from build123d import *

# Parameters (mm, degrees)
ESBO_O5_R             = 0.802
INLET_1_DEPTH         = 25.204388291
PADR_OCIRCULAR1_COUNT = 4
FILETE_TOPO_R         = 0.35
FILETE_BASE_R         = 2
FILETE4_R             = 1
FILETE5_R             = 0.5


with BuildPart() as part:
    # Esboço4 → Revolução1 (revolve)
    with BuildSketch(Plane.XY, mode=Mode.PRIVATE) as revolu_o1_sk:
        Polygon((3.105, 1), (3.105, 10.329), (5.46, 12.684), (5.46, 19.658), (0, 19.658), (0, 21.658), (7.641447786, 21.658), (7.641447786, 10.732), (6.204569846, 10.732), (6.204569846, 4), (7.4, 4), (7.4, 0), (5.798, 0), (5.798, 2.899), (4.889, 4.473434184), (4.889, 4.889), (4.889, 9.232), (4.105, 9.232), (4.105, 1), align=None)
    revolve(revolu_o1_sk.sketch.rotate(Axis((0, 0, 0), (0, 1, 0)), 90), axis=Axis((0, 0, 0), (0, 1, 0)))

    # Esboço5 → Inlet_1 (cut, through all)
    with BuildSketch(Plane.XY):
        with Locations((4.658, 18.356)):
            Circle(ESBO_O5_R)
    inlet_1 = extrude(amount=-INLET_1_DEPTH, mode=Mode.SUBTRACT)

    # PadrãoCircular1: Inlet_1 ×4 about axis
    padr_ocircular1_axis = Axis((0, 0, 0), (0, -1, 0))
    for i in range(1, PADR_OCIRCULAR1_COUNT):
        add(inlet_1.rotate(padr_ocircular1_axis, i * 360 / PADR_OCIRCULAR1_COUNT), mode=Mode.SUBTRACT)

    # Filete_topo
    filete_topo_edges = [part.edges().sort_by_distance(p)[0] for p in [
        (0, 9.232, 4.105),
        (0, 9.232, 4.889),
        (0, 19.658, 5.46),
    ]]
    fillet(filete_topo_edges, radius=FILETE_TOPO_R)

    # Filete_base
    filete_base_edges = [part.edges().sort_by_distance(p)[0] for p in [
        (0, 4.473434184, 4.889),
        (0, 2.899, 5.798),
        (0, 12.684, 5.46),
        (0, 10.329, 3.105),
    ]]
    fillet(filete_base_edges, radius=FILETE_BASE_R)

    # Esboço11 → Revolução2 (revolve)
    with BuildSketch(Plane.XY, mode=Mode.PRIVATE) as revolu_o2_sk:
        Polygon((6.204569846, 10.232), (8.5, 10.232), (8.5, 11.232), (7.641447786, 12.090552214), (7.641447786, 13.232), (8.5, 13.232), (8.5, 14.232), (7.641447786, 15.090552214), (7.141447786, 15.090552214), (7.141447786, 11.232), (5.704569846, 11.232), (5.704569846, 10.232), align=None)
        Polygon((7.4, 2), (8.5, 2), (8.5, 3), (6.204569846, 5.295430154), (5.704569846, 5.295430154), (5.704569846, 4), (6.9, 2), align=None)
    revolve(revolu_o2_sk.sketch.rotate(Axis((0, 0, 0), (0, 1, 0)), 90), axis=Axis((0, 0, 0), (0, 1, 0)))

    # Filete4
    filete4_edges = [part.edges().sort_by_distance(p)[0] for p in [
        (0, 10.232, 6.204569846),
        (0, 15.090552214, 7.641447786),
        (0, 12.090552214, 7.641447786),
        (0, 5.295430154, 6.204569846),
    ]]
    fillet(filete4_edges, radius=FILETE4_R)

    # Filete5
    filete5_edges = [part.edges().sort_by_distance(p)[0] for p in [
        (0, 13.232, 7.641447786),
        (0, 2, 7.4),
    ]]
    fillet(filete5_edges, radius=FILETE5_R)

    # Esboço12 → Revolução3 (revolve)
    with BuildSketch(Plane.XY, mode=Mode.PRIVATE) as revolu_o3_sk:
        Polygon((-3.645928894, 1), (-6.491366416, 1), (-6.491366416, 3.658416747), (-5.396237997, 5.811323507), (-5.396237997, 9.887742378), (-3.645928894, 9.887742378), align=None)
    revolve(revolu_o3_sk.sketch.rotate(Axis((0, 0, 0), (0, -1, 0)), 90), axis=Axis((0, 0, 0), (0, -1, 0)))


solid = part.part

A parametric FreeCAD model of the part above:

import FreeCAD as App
import Part
import Sketcher
from FreeCAD import Vector
Q = App.Units.Quantity


def edges_at(feature, points):
    """Names of the edges that pass closest to the given points."""
    edges = feature.Shape.Edges
    near = lambda p: min(range(len(edges)), key=lambda i: edges[i].distToShape(Part.Vertex(*p))[0])
    return sorted({f"Edge{near(p) + 1}" for p in points})

doc = App.newDocument("Part")
body = doc.addObject("PartDesign::Body", "Body")

sketch1 = body.newObject("Sketcher::SketchObject", "Sketch")
sketch1.AttachmentSupport = (doc.getObject("XY_Plane"), [""])
sketch1.MapMode = "FlatFace"
sketch1.addGeometry([
    Part.LineSegment(Vector(3.1, 10.3, 0), Vector(3.1, 1, 0)),
    Part.LineSegment(Vector(3.1, 1, 0), Vector(4.1, 1, 0)),
    Part.LineSegment(Vector(4.1, 1, 0), Vector(4.1, 9.2, 0)),
    Part.LineSegment(Vector(4.1, 9.2, 0), Vector(4.9, 9.2, 0)),
    Part.LineSegment(Vector(4.9, 9.2, 0), Vector(4.9, 4.5, 0)),
    Part.LineSegment(Vector(4.9, 4.5, 0), Vector(5.8, 2.9, 0)),
    Part.LineSegment(Vector(5.8, 2.9, 0), Vector(5.8, 0, 0)),
    Part.LineSegment(Vector(5.8, 0, 0), Vector(7.4, 0, 0)),
    Part.LineSegment(Vector(7.4, 0, 0), Vector(7.4, 4, 0)),
    Part.LineSegment(Vector(7.4, 4, 0), Vector(6.2, 4, 0)),
    Part.LineSegment(Vector(6.2, 4, 0), Vector(6.2, 10.7, 0)),
    Part.LineSegment(Vector(6.2, 10.7, 0), Vector(7.6, 10.7, 0)),
    Part.LineSegment(Vector(7.6, 10.7, 0), Vector(7.6, 21.7, 0)),
    Part.LineSegment(Vector(7.6, 21.7, 0), Vector(0, 21.7, 0)),
    Part.LineSegment(Vector(0, 21.7, 0), Vector(0, 19.7, 0)),
    Part.LineSegment(Vector(0, 19.7, 0), Vector(5.5, 19.7, 0)),
    Part.LineSegment(Vector(5.5, 19.7, 0), Vector(5.5, 12.7, 0)),
    Part.LineSegment(Vector(5.5, 12.7, 0), Vector(3.1, 10.3, 0)),
], False)
sketch1.addConstraint([
    Sketcher.Constraint("Coincident", 0, 2, 1, 1),
    Sketcher.Constraint("Coincident", 1, 2, 2, 1),
    Sketcher.Constraint("Coincident", 2, 2, 3, 1),
    Sketcher.Constraint("Coincident", 3, 2, 4, 1),
    Sketcher.Constraint("Coincident", 4, 2, 5, 1),
    Sketcher.Constraint("Coincident", 5, 2, 6, 1),
    Sketcher.Constraint("Coincident", 6, 2, 7, 1),
    Sketcher.Constraint("Coincident", 7, 2, 8, 1),
    Sketcher.Constraint("Coincident", 8, 2, 9, 1),
    Sketcher.Constraint("Coincident", 9, 2, 10, 1),
    Sketcher.Constraint("Coincident", 10, 2, 11, 1),
    Sketcher.Constraint("Coincident", 11, 2, 12, 1),
    Sketcher.Constraint("Coincident", 12, 2, 13, 1),
    Sketcher.Constraint("Coincident", 13, 2, 14, 1),
    Sketcher.Constraint("Coincident", 14, 2, 15, 1),
    Sketcher.Constraint("Coincident", 15, 2, 16, 1),
    Sketcher.Constraint("Coincident", 16, 2, 17, 1),
    Sketcher.Constraint("Coincident", 17, 2, 0, 1),
    Sketcher.Constraint("Vertical", 0),
    Sketcher.Constraint("Horizontal", 1),
    Sketcher.Constraint("Vertical", 2),
    Sketcher.Constraint("Horizontal", 3),
    Sketcher.Constraint("Vertical", 4),
    Sketcher.Constraint("Vertical", 6),
    Sketcher.Constraint("Horizontal", 7),
    Sketcher.Constraint("Vertical", 8),
    Sketcher.Constraint("Horizontal", 9),
    Sketcher.Constraint("Vertical", 10),
    Sketcher.Constraint("Horizontal", 11),
    Sketcher.Constraint("Vertical", 12),
    Sketcher.Constraint("Horizontal", 13),
    Sketcher.Constraint("Vertical", 14),
    Sketcher.Constraint("Horizontal", 15),
    Sketcher.Constraint("Vertical", 16),
    Sketcher.Constraint("PointOnObject", 6, 2, -1),
    Sketcher.Constraint("PointOnObject", 13, 2, -2),
    Sketcher.Constraint("DistanceX", 1, 1, 1, 2, Q("1 mm")),
    Sketcher.Constraint("DistanceY", 8, 1, 8, 2, Q("4 mm")),
    Sketcher.Constraint("DistanceY", 14, 2, 14, 1, Q("2 mm")),
    Sketcher.Constraint("Angle", 5, Q("-60 deg")),
    Sketcher.Constraint("Angle", 17, Q("-135 deg")),
    Sketcher.Constraint("DistanceY", -1, 1, 0, 2, Q("1 mm")),
    Sketcher.Constraint("DistanceX", 15, 1, 15, 2, Q("5.46 mm")),
    Sketcher.Constraint("DistanceX", -1, 1, 7, 2, Q("7.4 mm")),
    Sketcher.Constraint("DistanceY", 3, 2, 10, 2, Q("1.5 mm")),
    Sketcher.Constraint("DistanceX", 3, 1, 3, 2, Q("0.784 mm")),
    Sketcher.Constraint("DistanceX", 7, 1, 7, 2, Q("1.602 mm")),
    Sketcher.Constraint("DistanceY", 0, 2, 0, 1, Q("9.329 mm")),
    Sketcher.Constraint("DistanceY", 2, 1, 2, 2, Q("8.232 mm")),
    Sketcher.Constraint("DistanceY", 6, 2, 6, 1, Q("2.899 mm")),
    Sketcher.Constraint("DistanceY", 12, 1, 12, 2, Q("10.926 mm")),
    Sketcher.Constraint("DistanceY", 16, 2, 16, 1, Q("6.974 mm")),
    Sketcher.Constraint("DistanceX", 9, 2, 9, 1, Q("1.19543 mm")),
    Sketcher.Constraint("DistanceX", 11, 1, 11, 2, Q("1.436878 mm")),
])
revolution = body.newObject("PartDesign::Revolution", "Revolution")
revolution.Profile = sketch1
revolution.ReferenceAxis = (sketch1, ["V_Axis"])
revolution.Angle = 360

sketch2 = body.newObject("Sketcher::SketchObject", "Sketch001")
sketch2.AttachmentSupport = (doc.getObject("XY_Plane"), [""])
sketch2.MapMode = "FlatFace"
sketch2.addGeometry(Part.Circle(Vector(4.7, 18.4, 0), Vector(0, 0, 1), 0.8), False)
sketch2.addConstraint([
    Sketcher.Constraint("Diameter", 0, Q("1.604 mm")),
    Sketcher.Constraint("DistanceX", -1, 1, 0, 3, Q("4.658 mm")),
    Sketcher.Constraint("DistanceY", -1, 1, 0, 3, Q("18.356 mm")),
])
pocket1 = body.newObject("PartDesign::Pocket", "Pocket")
pocket1.Profile = sketch2
pocket1.Type = "ThroughAll"
doc.recompute()

polarpattern = body.newObject("PartDesign::PolarPattern", "PolarPattern")
polarpattern.Originals = [pocket1]
polarpattern.Axis = (doc.getObject("Y_Axis"), [""])
polarpattern.Angle = 360
polarpattern.Occurrences = 4
body.Tip = polarpattern
doc.recompute()

fillet = body.newObject("PartDesign::Fillet", "Fillet")
fillet.Base = (polarpattern, edges_at(polarpattern, [(0, 9.232, 4.105), (0, 9.232, 4.889), (0, 19.658, 5.46)]))
fillet.Radius = 0.35
doc.recompute()

fillet2 = body.newObject("PartDesign::Fillet", "Fillet001")
fillet2.Base = (fillet, edges_at(fillet, [
    (0, 4.473, 4.889),
    (0, 2.899, 5.798),
    (0, 12.684, 5.46),
    (0, 10.329, 3.105),
]))
fillet2.Radius = 2

sketch3 = body.newObject("Sketcher::SketchObject", "Sketch002")
sketch3.AttachmentSupport = (doc.getObject("XY_Plane"), [""])
sketch3.MapMode = "FlatFace"
sketch3.addGeometry([
    Part.LineSegment(Vector(8.5, 10.2, 0), Vector(8.5, 11.2, 0)),
    Part.LineSegment(Vector(8.5, 11.2, 0), Vector(7.6, 12.1, 0)),
    Part.LineSegment(Vector(7.6, 12.1, 0), Vector(7.6, 13.2, 0)),
    Part.LineSegment(Vector(7.6, 13.2, 0), Vector(8.5, 13.2, 0)),
    Part.LineSegment(Vector(8.5, 13.2, 0), Vector(8.5, 14.2, 0)),
    Part.LineSegment(Vector(8.5, 14.2, 0), Vector(7.6, 15.1, 0)),
    Part.LineSegment(Vector(7.6, 15.1, 0), Vector(7.1, 15.1, 0)),
    Part.LineSegment(Vector(7.1, 15.1, 0), Vector(7.1, 11.2, 0)),
    Part.LineSegment(Vector(7.1, 11.2, 0), Vector(5.7, 11.2, 0)),
    Part.LineSegment(Vector(5.7, 11.2, 0), Vector(5.7, 10.2, 0)),
    Part.LineSegment(Vector(5.7, 10.2, 0), Vector(8.5, 10.2, 0)),
    Part.LineSegment(Vector(8.5, 2, 0), Vector(8.5, 3, 0)),
    Part.LineSegment(Vector(8.5, 3, 0), Vector(6.2, 5.3, 0)),
    Part.LineSegment(Vector(6.2, 5.3, 0), Vector(5.7, 5.3, 0)),
    Part.LineSegment(Vector(5.7, 5.3, 0), Vector(5.7, 4, 0)),
    Part.LineSegment(Vector(5.7, 4, 0), Vector(6.9, 2, 0)),
    Part.LineSegment(Vector(6.9, 2, 0), Vector(8.5, 2, 0)),
], False)
sketch3.addConstraint([
    Sketcher.Constraint("Coincident", 0, 2, 1, 1),
    Sketcher.Constraint("Coincident", 1, 2, 2, 1),
    Sketcher.Constraint("Coincident", 2, 2, 3, 1),
    Sketcher.Constraint("Coincident", 3, 2, 4, 1),
    Sketcher.Constraint("Coincident", 4, 2, 5, 1),
    Sketcher.Constraint("Coincident", 5, 2, 6, 1),
    Sketcher.Constraint("Coincident", 6, 2, 7, 1),
    Sketcher.Constraint("Coincident", 7, 2, 8, 1),
    Sketcher.Constraint("Coincident", 8, 2, 9, 1),
    Sketcher.Constraint("Coincident", 9, 2, 10, 1),
    Sketcher.Constraint("Coincident", 10, 2, 0, 1),
    Sketcher.Constraint("Coincident", 11, 2, 12, 1),
    Sketcher.Constraint("Coincident", 12, 2, 13, 1),
    Sketcher.Constraint("Coincident", 13, 2, 14, 1),
    Sketcher.Constraint("Coincident", 14, 2, 15, 1),
    Sketcher.Constraint("Coincident", 15, 2, 16, 1),
    Sketcher.Constraint("Coincident", 16, 2, 11, 1),
    Sketcher.Constraint("Vertical", 0),
    Sketcher.Constraint("Vertical", 2),
    Sketcher.Constraint("Horizontal", 3),
    Sketcher.Constraint("Vertical", 4),
    Sketcher.Constraint("Horizontal", 6),
    Sketcher.Constraint("Vertical", 7),
    Sketcher.Constraint("Horizontal", 8),
    Sketcher.Constraint("Vertical", 9),
    Sketcher.Constraint("Horizontal", 10),
    Sketcher.Constraint("Vertical", 11),
    Sketcher.Constraint("Horizontal", 13),
    Sketcher.Constraint("Vertical", 14),
    Sketcher.Constraint("Horizontal", 16),
    Sketcher.Constraint("Parallel", 1, 5),
    Sketcher.Constraint("Parallel", 5, 12),
    Sketcher.Constraint("Horizontal", 0, 2, 7, 2),
    Sketcher.Constraint("Vertical", 0, 2, 3, 2),
    Sketcher.Constraint("Vertical", 2, 2, 5, 2),
    Sketcher.Constraint("Vertical", 10, 2, 11, 2),
    Sketcher.Constraint("Vertical", 9, 2, 13, 2),
    Sketcher.Constraint("Equal", 6, 13),
    Sketcher.Constraint("Equal", 0, 4),
    Sketcher.Constraint("Equal", 9, 11),
    Sketcher.Constraint("DistanceY", 0, 1, 0, 2, Q("1 mm")),
    Sketcher.Constraint("Angle", 1, Q("135 deg")),
    Sketcher.Constraint("DistanceX", 6, 2, 6, 1, Q("0.5 mm")),
    Sketcher.Constraint("DistanceX", 16, 1, 16, 2, Q("1.6 mm")),
    Sketcher.Constraint("DistanceY", -1, 1, 11, 2, Q("3 mm")),
    Sketcher.Constraint("DistanceY", -1, 1, 14, 2, Q("4 mm")),
    Sketcher.Constraint("DistanceY", 0, 2, 2, 2, Q("2 mm")),
    Sketcher.Constraint("DistanceX", -1, 1, 0, 2, Q("8.5 mm")),
    Sketcher.Constraint("DistanceY", -1, 1, 0, 2, Q("11.232 mm")),
    Sketcher.Constraint("DistanceX", 10, 1, 10, 2, Q("2.79543 mm")),
    Sketcher.Constraint("DistanceX", 3, 1, 3, 2, Q("0.858552 mm")),
])
revolution2 = body.newObject("PartDesign::Revolution", "Revolution001")
revolution2.Profile = sketch3
revolution2.ReferenceAxis = (sketch3, ["V_Axis"])
revolution2.Angle = 360
doc.recompute()

fillet3 = body.newObject("PartDesign::Fillet", "Fillet002")
fillet3.Base = (revolution2, edges_at(revolution2, [
    (0, 10.232, 6.205),
    (0, 15.091, 7.641),
    (0, 12.091, 7.641),
    (0, 5.295, 6.205),
]))
fillet3.Radius = 1
doc.recompute()

fillet4 = body.newObject("PartDesign::Fillet", "Fillet003")
fillet4.Base = (fillet3, edges_at(fillet3, [(0, 13.232, 7.641), (0, 2, 7.4)]))
fillet4.Radius = 0.5

sketch4 = body.newObject("Sketcher::SketchObject", "Sketch003")
sketch4.AttachmentSupport = (doc.getObject("XY_Plane"), [""])
sketch4.MapMode = "FlatFace"
sketch4.addGeometry([
    Part.LineSegment(Vector(-6.5, 1, 0), Vector(-3.6, 1, 0)),
    Part.LineSegment(Vector(-3.6, 1, 0), Vector(-3.6, 9.9, 0)),
    Part.LineSegment(Vector(-3.6, 9.9, 0), Vector(-5.4, 9.9, 0)),
    Part.LineSegment(Vector(-5.4, 9.9, 0), Vector(-5.4, 5.8, 0)),
    Part.LineSegment(Vector(-5.4, 5.8, 0), Vector(-6.5, 3.7, 0)),
    Part.LineSegment(Vector(-6.5, 3.7, 0), Vector(-6.5, 1, 0)),
], False)
sketch4.addConstraint([
    Sketcher.Constraint("Coincident", 0, 2, 1, 1),
    Sketcher.Constraint("Coincident", 1, 2, 2, 1),
    Sketcher.Constraint("Coincident", 2, 2, 3, 1),
    Sketcher.Constraint("Coincident", 3, 2, 4, 1),
    Sketcher.Constraint("Coincident", 4, 2, 5, 1),
    Sketcher.Constraint("Coincident", 5, 2, 0, 1),
    Sketcher.Constraint("Horizontal", 0),
    Sketcher.Constraint("Vertical", 1),
    Sketcher.Constraint("Horizontal", 2),
    Sketcher.Constraint("Vertical", 3),
    Sketcher.Constraint("Vertical", 5),
    Sketcher.Constraint("DistanceY", -1, 1, 0, 2, Q("1 mm")),
    Sketcher.Constraint("DistanceX", 2, 2, 2, 1, Q("1.750309 mm")),
    Sketcher.Constraint("DistanceY", 3, 2, 3, 1, Q("4.076419 mm")),
    Sketcher.Constraint("DistanceX", 0, 1, 0, 2, Q("2.845438 mm")),
    Sketcher.Constraint("DistanceY", 1, 1, 1, 2, Q("8.887742 mm")),
    Sketcher.Constraint("DistanceY", 5, 2, 5, 1, Q("2.658417 mm")),
    Sketcher.Constraint("DistanceX", 0, 2, -1, 1, Q("3.645929 mm")),
])
revolution3 = body.newObject("PartDesign::Revolution", "Revolution002")
revolution3.Profile = sketch4
revolution3.ReferenceAxis = (sketch4, ["V_Axis"])
revolution3.Angle = 360

doc.recompute()
